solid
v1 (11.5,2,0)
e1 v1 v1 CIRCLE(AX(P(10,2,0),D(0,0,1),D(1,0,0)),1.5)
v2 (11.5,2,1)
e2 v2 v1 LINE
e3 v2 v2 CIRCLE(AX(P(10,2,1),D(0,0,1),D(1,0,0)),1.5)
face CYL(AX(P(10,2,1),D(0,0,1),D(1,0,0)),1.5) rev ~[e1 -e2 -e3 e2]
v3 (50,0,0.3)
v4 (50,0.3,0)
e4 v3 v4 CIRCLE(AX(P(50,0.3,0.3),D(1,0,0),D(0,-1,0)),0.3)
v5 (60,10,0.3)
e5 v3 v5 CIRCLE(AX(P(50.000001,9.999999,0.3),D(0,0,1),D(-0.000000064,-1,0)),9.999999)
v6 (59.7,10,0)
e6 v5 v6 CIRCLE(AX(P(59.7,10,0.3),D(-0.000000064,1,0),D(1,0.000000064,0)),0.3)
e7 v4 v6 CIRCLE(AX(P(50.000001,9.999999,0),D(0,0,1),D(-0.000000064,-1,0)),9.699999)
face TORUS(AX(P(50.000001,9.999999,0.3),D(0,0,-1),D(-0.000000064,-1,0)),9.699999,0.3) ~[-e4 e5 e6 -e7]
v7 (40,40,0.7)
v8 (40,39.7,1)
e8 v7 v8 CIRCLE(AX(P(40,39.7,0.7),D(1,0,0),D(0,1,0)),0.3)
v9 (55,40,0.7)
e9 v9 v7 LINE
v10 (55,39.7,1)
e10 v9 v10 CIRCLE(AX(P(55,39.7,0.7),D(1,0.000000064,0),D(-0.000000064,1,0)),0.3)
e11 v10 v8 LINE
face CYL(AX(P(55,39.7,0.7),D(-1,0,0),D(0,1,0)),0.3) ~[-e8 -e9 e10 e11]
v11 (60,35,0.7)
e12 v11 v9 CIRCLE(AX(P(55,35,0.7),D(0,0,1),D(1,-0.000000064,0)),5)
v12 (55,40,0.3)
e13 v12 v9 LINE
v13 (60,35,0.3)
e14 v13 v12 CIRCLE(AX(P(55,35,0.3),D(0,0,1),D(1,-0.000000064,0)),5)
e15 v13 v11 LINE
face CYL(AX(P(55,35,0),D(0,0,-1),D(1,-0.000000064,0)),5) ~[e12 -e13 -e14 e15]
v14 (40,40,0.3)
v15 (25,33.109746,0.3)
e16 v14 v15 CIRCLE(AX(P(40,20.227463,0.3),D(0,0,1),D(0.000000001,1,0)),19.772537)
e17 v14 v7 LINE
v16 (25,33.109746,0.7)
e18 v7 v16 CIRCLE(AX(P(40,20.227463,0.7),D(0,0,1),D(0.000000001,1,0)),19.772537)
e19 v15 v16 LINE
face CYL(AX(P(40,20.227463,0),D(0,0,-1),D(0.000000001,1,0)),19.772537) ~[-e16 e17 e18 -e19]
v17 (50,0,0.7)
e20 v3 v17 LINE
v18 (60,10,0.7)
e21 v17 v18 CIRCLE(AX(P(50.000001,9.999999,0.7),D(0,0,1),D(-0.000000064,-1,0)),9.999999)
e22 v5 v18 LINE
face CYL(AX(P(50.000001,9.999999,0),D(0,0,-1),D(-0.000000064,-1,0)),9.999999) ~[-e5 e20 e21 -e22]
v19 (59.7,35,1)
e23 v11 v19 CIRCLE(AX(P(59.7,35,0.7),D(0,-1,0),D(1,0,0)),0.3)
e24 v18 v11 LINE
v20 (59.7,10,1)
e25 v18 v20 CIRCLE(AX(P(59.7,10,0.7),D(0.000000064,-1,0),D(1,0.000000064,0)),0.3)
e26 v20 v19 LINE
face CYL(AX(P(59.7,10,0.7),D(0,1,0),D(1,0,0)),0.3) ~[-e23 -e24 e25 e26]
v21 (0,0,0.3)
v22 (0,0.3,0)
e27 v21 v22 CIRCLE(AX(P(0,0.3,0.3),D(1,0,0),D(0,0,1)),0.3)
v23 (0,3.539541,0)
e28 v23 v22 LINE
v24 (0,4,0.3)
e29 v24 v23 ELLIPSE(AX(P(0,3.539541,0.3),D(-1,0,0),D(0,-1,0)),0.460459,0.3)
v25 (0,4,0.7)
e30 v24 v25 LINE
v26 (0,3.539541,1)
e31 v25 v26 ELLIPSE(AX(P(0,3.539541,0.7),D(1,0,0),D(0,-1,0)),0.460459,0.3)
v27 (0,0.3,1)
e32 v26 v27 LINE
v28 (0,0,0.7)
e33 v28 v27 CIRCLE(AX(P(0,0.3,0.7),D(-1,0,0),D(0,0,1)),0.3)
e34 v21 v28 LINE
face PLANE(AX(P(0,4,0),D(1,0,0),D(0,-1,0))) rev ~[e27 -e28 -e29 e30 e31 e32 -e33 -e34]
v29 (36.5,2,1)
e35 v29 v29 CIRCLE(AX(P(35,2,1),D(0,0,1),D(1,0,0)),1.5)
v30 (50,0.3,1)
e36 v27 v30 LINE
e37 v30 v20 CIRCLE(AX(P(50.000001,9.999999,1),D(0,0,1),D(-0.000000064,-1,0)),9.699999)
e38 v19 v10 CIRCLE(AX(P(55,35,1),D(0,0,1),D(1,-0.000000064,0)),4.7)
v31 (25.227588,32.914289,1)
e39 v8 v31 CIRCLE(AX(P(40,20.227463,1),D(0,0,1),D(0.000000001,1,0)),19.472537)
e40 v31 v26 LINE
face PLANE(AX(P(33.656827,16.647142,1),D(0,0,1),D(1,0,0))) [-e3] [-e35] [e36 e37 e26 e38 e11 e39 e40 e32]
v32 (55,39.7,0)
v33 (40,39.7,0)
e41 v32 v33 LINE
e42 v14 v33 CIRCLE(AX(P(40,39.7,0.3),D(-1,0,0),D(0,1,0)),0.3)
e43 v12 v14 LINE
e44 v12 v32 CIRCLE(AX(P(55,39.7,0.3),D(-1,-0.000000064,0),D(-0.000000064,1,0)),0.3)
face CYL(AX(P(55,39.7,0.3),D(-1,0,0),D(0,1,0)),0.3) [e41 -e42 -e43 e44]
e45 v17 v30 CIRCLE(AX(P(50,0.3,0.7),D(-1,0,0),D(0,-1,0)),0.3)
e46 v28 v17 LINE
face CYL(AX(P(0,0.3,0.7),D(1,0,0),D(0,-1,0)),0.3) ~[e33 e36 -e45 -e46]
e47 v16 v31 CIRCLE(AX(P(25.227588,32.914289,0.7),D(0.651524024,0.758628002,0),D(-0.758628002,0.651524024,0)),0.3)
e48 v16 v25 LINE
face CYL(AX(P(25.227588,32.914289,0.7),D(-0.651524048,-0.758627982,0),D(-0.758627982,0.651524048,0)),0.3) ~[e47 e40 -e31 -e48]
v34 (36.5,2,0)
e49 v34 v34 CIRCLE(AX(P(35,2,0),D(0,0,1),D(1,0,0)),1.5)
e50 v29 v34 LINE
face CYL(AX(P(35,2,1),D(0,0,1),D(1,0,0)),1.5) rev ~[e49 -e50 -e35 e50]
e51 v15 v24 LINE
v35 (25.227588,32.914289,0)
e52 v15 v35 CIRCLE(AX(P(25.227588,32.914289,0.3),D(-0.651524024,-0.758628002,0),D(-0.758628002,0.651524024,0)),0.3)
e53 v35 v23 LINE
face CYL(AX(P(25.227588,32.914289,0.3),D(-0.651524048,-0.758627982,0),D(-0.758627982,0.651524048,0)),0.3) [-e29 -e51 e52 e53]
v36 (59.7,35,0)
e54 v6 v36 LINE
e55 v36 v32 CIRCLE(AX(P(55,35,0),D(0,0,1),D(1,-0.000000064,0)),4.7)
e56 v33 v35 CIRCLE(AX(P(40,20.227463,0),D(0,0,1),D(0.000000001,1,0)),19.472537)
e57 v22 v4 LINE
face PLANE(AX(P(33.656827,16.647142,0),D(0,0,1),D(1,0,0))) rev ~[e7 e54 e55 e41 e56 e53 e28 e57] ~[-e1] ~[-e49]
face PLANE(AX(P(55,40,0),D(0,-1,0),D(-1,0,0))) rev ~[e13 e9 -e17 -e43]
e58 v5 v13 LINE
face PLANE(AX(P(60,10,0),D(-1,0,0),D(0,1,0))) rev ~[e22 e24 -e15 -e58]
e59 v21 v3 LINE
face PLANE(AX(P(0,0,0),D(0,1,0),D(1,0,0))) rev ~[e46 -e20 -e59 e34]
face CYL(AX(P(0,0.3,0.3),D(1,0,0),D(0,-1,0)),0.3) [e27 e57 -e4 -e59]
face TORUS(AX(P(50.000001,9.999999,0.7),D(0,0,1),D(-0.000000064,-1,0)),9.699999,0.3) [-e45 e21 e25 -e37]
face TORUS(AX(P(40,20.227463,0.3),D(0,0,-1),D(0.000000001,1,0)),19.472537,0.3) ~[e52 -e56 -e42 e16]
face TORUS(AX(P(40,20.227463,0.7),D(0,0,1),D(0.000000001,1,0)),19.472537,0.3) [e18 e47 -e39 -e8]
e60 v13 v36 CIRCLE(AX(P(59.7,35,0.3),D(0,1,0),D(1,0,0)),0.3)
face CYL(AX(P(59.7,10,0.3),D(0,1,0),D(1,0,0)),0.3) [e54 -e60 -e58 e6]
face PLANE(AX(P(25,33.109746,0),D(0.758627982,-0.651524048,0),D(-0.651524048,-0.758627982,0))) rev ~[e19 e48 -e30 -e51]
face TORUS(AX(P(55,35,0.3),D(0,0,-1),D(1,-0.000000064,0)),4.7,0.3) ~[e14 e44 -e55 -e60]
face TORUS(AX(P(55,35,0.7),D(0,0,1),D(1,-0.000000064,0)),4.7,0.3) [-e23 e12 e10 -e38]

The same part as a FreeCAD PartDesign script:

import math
import FreeCAD as App
import Part
import Sketcher
from FreeCAD import Vector


def edges_at(feature, points):
    """Names of the edges that pass closest to the given points."""
    edges = feature.Shape.Edges
    near = lambda p: min(range(len(edges)), key=lambda i: edges[i].distToShape(Part.Vertex(*p))[0])
    return sorted({f"Edge{near(p) + 1}" for p in points})

doc = App.newDocument("Part")
body = doc.addObject("PartDesign::Body", "Body")

# Sketch on XY plane
sketch1 = doc.addObject("Sketcher::SketchObject", "Sketch")
body.addObject(sketch1)
sketch1.AttachmentSupport = (doc.XY_Plane, [""])
sketch1.MapMode = "FlatFace"
sketch1.addGeometry([
    Part.LineSegment(Vector(0, 0, 0), Vector(50, 0, 0)),  # 0
    Part.ArcOfCircle(Part.Circle(Vector(50, 10, 0), Vector(0, 0, 1), 10), math.radians(-90), math.radians(0)),  # 1
    Part.LineSegment(Vector(60, 10, 0), Vector(60, 35, 0)),  # 2
    Part.ArcOfCircle(Part.Circle(Vector(55, 35, 0), Vector(0, 0, 1), 5), math.radians(0), math.radians(90)),  # 3
    Part.LineSegment(Vector(55, 40, 0), Vector(40, 40, 0)),  # 4
    Part.ArcOfCircle(Part.Circle(Vector(40, 20.2, 0), Vector(0, 0, 1), 19.8), math.radians(90), math.radians(139)),  # 5
    Part.LineSegment(Vector(25, 33.1, 0), Vector(0, 4, 0)),  # 6
    Part.LineSegment(Vector(0, 4, 0), Vector(0, 0, 0)),  # 7
], False)
sketch1.addConstraint([
    Sketcher.Constraint("Tangent", 0, 2, 1, 1),
    Sketcher.Constraint("Tangent", 1, 2, 2, 1),
    Sketcher.Constraint("Tangent", 2, 2, 3, 1),
    Sketcher.Constraint("Tangent", 3, 2, 4, 1),
    Sketcher.Constraint("Tangent", 4, 2, 5, 1),
    Sketcher.Constraint("Tangent", 5, 2, 6, 1),
    Sketcher.Constraint("Coincident", 6, 2, 7, 1),
    Sketcher.Constraint("Coincident", 7, 2, 0, 1),
    Sketcher.Constraint("Horizontal", 0),
    Sketcher.Constraint("Vertical", 2),
    Sketcher.Constraint("Horizontal", 4),
    Sketcher.Constraint("Vertical", 7),
    Sketcher.Constraint("Coincident", 7, 2, -1, 1),
    Sketcher.Constraint("Radius", 1, 9.999999),
    Sketcher.Constraint("Radius", 3, 5.0),
    Sketcher.Constraint("DistanceX", 0, 1, 0, 2, 50.0),
    Sketcher.Constraint("DistanceX", 4, 2, 4, 1, 15.0),
    Sketcher.Constraint("DistanceY", 2, 1, 2, 2, 25.0),
    Sketcher.Constraint("DistanceY", 7, 2, 7, 1, 4.0),
    Sketcher.Constraint("DistanceX", -1, 1, 5, 2, 25.0),
])
pad1 = doc.addObject("PartDesign::Pad", "Pad")
body.addObject(pad1)
pad1.Profile = sketch1
pad1.Length = 1
doc.recompute()

fillet = doc.addObject("PartDesign::Fillet", "Fillet")
body.addObject(fillet)
fillet.Base = (pad1, edges_at(pad1, [
    (31.747, 38.195, 1),
    (31.747, 38.195, 0),
    (47.5, 40, 1),
    (47.5, 40, 0),
    (12.5, 18.555, 1),
    (12.5, 18.555, 0),
]))
fillet.Radius = 0.3

# Sketch on XY plane
sketch2 = doc.addObject("Sketcher::SketchObject", "Sketch001")
body.addObject(sketch2)
sketch2.AttachmentSupport = (doc.XY_Plane, [""])
sketch2.MapMode = "FlatFace"
sketch2.AttachmentOffset = App.Placement(Vector(0, 0, 1), App.Rotation())
sketch2.addGeometry([
    Part.Circle(Vector(10, 2, 0), Vector(0, 0, 1), 1.5),
    Part.Circle(Vector(35, 2, 0), Vector(0, 0, 1), 1.5),
], False)
sketch2.addConstraint([
    Sketcher.Constraint("Equal", 0, 1),
    Sketcher.Constraint("Horizontal", 0, 3, 1, 3),
    Sketcher.Constraint("Diameter", 0, 3.0),
    Sketcher.Constraint("DistanceX", -1, 1, 0, 3, 10.0),
    Sketcher.Constraint("DistanceY", -1, 1, 0, 3, 2.0),
    Sketcher.Constraint("DistanceX", -1, 1, 1, 3, 35.0),
])
pocket1 = doc.addObject("PartDesign::Pocket", "Pocket")
body.addObject(pocket1)
pocket1.Profile = sketch2
pocket1.Type = "ThroughAll"

doc.recompute()
